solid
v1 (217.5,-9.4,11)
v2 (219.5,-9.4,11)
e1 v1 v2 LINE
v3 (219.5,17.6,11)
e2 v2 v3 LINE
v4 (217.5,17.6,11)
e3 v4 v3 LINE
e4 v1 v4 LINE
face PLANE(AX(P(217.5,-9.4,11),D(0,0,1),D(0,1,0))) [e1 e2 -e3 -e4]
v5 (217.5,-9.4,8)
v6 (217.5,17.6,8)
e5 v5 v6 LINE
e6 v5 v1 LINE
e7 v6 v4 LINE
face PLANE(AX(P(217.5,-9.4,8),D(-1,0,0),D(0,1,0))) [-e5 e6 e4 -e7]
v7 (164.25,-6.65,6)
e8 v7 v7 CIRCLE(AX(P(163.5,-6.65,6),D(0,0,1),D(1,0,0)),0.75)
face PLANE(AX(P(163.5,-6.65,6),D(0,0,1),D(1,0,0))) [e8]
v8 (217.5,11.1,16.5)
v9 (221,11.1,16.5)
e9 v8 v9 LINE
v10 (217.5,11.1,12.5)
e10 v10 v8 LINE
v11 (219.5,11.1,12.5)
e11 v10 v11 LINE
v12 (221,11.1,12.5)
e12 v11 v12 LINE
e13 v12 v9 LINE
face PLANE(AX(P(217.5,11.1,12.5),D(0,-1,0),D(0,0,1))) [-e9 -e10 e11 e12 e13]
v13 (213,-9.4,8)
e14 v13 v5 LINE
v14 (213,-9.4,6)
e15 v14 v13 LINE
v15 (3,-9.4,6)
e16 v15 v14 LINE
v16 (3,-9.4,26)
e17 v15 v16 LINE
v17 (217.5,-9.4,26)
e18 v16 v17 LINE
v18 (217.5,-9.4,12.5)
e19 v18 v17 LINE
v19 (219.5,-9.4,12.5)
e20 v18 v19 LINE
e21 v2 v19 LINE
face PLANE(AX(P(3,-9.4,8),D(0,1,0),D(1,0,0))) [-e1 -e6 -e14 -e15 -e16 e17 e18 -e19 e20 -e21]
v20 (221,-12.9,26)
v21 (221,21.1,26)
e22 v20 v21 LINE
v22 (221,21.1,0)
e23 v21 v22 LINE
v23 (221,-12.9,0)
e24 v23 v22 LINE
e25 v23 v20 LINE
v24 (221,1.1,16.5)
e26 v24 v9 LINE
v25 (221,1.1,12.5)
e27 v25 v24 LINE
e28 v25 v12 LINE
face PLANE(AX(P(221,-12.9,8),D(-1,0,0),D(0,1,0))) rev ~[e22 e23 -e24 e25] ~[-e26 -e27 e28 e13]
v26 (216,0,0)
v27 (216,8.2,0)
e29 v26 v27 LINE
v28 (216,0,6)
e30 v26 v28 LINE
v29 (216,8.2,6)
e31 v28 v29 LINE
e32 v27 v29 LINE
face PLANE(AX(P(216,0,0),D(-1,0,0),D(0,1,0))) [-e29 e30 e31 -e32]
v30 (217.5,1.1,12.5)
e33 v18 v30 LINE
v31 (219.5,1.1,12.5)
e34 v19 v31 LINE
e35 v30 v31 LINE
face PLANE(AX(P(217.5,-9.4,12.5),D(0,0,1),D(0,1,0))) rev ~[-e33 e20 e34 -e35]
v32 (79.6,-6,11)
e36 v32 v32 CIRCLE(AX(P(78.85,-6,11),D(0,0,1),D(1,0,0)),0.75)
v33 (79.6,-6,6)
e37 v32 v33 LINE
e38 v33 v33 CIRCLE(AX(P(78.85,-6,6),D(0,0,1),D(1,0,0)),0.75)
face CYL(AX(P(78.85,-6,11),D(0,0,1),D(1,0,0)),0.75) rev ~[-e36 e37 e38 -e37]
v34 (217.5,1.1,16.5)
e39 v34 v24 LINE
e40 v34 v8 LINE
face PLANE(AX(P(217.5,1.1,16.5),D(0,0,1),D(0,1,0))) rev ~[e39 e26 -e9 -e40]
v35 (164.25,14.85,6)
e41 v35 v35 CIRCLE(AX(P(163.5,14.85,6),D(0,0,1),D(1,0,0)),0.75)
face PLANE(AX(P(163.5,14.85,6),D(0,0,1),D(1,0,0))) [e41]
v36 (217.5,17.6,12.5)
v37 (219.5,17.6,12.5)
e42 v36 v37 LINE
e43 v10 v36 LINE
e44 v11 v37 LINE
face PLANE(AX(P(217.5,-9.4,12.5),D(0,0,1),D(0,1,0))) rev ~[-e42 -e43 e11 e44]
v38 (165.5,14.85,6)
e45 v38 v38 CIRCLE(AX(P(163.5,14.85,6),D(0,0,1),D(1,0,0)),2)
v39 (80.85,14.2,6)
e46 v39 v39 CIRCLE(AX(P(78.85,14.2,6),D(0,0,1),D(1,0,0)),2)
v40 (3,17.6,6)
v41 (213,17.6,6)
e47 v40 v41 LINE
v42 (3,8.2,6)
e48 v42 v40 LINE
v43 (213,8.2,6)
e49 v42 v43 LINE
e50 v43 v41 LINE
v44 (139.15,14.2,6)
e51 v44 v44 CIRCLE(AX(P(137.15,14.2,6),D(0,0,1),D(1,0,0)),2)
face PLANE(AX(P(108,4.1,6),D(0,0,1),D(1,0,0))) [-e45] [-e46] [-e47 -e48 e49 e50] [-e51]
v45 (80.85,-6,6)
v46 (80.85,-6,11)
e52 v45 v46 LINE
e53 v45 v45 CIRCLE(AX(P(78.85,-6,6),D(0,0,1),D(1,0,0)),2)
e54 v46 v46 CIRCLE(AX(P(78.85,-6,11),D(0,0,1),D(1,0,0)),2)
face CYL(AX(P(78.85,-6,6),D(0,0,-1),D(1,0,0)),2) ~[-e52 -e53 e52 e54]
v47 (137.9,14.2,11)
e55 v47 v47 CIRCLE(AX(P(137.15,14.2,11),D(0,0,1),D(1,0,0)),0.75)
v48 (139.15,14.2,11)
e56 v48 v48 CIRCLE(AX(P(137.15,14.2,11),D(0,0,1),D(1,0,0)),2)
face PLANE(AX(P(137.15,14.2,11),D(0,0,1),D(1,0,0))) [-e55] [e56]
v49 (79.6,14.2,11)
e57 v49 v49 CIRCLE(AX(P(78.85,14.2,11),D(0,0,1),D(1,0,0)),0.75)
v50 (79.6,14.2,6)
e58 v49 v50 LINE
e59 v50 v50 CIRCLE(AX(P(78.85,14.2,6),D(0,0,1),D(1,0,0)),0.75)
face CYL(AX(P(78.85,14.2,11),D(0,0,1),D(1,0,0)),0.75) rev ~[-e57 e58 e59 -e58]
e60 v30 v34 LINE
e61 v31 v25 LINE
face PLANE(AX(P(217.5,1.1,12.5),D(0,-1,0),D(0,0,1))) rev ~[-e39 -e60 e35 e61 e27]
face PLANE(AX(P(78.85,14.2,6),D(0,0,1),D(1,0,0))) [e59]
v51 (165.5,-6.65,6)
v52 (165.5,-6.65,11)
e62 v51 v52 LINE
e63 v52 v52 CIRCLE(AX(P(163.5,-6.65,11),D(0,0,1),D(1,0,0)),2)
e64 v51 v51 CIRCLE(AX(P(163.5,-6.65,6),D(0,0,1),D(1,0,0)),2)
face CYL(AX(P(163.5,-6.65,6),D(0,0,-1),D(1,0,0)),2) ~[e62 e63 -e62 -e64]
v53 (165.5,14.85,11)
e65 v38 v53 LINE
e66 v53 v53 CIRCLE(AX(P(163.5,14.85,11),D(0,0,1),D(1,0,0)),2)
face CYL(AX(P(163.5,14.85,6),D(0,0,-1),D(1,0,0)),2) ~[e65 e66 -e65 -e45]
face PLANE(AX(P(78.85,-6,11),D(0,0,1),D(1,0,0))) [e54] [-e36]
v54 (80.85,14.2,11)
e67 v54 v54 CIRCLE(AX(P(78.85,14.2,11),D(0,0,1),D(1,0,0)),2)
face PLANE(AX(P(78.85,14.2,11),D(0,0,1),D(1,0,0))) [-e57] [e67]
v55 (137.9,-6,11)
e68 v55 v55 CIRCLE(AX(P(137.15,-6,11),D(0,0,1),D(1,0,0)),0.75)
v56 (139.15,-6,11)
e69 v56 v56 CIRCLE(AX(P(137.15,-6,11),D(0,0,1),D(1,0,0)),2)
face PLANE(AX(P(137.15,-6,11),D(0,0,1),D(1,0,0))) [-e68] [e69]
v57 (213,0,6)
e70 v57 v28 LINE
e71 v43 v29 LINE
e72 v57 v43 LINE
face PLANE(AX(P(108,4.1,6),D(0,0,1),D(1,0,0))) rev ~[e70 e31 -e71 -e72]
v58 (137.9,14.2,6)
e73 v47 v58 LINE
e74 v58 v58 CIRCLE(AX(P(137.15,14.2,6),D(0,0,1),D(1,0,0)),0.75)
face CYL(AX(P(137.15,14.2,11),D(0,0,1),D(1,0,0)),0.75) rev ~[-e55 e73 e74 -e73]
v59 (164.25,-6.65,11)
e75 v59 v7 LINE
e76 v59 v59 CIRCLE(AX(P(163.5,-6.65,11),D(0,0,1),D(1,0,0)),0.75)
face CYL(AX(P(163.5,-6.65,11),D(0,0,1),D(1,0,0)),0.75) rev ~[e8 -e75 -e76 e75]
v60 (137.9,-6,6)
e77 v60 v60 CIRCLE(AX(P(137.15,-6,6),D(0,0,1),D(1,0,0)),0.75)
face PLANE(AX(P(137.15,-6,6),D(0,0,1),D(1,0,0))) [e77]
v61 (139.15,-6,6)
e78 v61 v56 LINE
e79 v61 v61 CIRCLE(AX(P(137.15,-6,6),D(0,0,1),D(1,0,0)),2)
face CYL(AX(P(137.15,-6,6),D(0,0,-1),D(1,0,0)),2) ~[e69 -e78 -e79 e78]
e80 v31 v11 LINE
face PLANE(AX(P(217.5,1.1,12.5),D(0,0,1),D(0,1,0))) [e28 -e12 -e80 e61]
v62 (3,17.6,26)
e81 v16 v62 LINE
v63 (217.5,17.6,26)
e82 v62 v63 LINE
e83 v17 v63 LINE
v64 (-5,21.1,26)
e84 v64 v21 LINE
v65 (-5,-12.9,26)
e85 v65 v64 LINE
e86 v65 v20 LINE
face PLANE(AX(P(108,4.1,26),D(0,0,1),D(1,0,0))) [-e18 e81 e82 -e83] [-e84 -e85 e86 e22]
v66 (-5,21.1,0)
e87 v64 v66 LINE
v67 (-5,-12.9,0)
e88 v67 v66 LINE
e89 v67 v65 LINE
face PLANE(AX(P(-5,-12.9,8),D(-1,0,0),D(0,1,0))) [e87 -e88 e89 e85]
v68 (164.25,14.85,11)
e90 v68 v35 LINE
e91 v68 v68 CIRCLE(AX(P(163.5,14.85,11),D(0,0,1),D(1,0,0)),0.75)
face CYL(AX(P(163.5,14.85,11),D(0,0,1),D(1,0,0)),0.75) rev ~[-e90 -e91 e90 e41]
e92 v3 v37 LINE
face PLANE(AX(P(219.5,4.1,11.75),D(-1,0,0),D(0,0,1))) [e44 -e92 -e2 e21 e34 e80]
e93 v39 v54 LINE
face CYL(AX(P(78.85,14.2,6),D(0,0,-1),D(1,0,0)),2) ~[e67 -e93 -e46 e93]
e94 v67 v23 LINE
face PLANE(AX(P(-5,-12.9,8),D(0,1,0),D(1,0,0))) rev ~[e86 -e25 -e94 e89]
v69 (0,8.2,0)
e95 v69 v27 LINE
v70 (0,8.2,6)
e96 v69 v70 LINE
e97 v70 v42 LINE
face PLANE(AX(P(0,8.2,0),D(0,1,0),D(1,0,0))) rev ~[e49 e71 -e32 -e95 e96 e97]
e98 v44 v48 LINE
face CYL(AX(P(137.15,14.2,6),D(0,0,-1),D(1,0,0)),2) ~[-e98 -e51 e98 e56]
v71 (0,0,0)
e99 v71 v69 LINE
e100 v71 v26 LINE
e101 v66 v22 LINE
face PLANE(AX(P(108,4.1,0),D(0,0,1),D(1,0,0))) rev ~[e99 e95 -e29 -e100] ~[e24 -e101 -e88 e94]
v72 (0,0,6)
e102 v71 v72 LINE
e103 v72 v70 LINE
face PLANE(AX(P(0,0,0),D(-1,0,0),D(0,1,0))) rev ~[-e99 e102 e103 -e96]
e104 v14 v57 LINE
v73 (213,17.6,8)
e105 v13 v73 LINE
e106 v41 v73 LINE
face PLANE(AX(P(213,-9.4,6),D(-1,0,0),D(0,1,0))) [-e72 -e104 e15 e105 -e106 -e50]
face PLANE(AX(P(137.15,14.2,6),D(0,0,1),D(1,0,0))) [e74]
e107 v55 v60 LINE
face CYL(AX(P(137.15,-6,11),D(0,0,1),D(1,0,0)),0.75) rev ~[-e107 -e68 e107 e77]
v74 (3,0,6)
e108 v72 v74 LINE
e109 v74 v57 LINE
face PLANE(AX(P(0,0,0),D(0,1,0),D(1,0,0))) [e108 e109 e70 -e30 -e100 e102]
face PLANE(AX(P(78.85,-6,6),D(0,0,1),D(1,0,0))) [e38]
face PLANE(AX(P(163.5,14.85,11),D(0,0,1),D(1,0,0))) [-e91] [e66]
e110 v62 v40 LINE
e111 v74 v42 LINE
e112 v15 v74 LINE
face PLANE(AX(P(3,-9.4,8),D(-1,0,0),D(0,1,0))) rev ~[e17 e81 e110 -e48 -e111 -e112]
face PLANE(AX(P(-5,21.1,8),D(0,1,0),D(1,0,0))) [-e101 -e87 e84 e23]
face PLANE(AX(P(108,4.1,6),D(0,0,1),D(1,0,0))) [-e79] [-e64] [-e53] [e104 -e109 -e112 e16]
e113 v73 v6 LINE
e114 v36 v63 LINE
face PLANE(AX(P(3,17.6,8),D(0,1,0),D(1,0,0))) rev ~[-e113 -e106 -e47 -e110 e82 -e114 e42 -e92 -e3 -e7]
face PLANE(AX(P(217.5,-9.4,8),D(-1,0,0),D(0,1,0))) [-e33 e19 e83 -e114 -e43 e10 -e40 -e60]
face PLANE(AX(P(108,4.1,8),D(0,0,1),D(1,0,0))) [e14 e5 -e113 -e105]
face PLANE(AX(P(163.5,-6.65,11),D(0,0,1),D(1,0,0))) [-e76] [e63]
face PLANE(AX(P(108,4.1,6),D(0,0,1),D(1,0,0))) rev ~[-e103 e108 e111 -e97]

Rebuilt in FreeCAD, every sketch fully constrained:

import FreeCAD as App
import Part
import Sketcher


def add_polygon(sketch, points):
    """Adds a closed chain of lines whose ends are joined by coincident constraints."""
    first, n = sketch.GeometryCount, len(points)
    for a, b in zip(points, points[1:] + points[:1]):
        sketch.addGeometry(Part.LineSegment(App.Vector(*a, 0), App.Vector(*b, 0)), False)
    for i in range(n):
        sketch.addConstraint(Sketcher.Constraint("Coincident", first + i, 2, first + (i + 1) % n, 1))

doc = App.newDocument("Part")
params = doc.addObject("Spreadsheet::Sheet", "Params")
for row, (alias, value) in enumerate([
    ("sketch1_width", "226 mm"),
    ("sketch1_width2", "216 mm"),
    ("sketch1_height", "34 mm"),
    ("sketch1_height2", "8.2 mm"),
    ("pad1_length", "6 mm"),
    ("sketch2_diameter", "4 mm"),
    ("pad2_length", "5 mm"),
    ("sketch3_diameter", "1.5 mm"),
    ("pocket1_length", "5 mm"),
    ("sketch4_width", "226 mm"),
    ("sketch4_width2", "210 mm"),
    ("sketch4_height", "34 mm"),
    ("sketch4_height2", "27 mm"),
    ("pad3_length", "2 mm"),
    ("sketch5_width", "226 mm"),
    ("sketch5_height", "34 mm"),
    ("sketch5_height2", "27 mm"),
    ("sketch5_width2", "214.5 mm"),
    ("pad4_length", "18 mm"),
    ("sketch6_width", "27 mm"),
    ("sketch6_height", "1.5 mm"),
    ("pocket2_length", "2 mm"),
    ("sketch7_diameter", "4 mm"),
    ("pad5_length", "5 mm"),
    ("sketch8_diameter", "1.5 mm"),
    ("pocket3_length", "5 mm"),
    ("sketch9_width", "10 mm"),
    ("sketch9_height", "4 mm"),
    ("pocket4_length", "5 mm"),
], start=1):
    params.set(f"A{row}", alias)
    params.set(f"B{row}", "=" + value)
    params.setAlias(f"B{row}", alias)

body = doc.addObject("PartDesign::Body", "Body")

# Sketch on XY plane
sketch1 = doc.addObject("Sketcher::SketchObject", "Sketch")
body.addObject(sketch1)
sketch1.AttachmentSupport = (doc.XY_Plane, [""])
sketch1.MapMode = "FlatFace"
add_polygon(sketch1, [(-5, 21.1), (-5, -12.9), (221, -12.9), (221, 21.1)])  # lines 0-3
add_polygon(sketch1, [(216, 0), (0, 0), (0, 8.2), (216, 8.2)])  # lines 4-7
sketch1.addConstraint([
    Sketcher.Constraint("Vertical", 0),
    Sketcher.Constraint("Horizontal", 1),
    Sketcher.Constraint("Vertical", 2),
    Sketcher.Constraint("Horizontal", 3),
    Sketcher.Constraint("Horizontal", 4),
    Sketcher.Constraint("Vertical", 5),
    Sketcher.Constraint("Horizontal", 6),
    Sketcher.Constraint("Vertical", 7),
    Sketcher.Constraint("Coincident", 4, 2, -1, 1),
    Sketcher.Constraint("DistanceX", 1, 1, 1, 2, 226.0),
    Sketcher.Constraint("DistanceX", 4, 2, 4, 1, 216.0),
    Sketcher.Constraint("DistanceY", 0, 2, 0, 1, 34.0),
    Sketcher.Constraint("DistanceY", 5, 1, 5, 2, 8.2),
    Sketcher.Constraint("DistanceX", 0, 2, -1, 1, 5.0),
    Sketcher.Constraint("DistanceY", 0, 2, -1, 1, 12.9),
])
sketch1.setExpression("Constraints[17]", "Params.sketch1_width")
sketch1.setExpression("Constraints[18]", "Params.sketch1_width2")
sketch1.setExpression("Constraints[19]", "Params.sketch1_height")
sketch1.setExpression("Constraints[20]", "Params.sketch1_height2")
pad1 = doc.addObject("PartDesign::Pad", "Pad")
body.addObject(pad1)
pad1.Profile = sketch1
pad1.setExpression("Length", "Params.pad1_length")

# Sketch on XY plane
sketch2 = doc.addObject("Sketcher::SketchObject", "Sketch001")
body.addObject(sketch2)
sketch2.AttachmentSupport = (doc.XY_Plane, [""])
sketch2.MapMode = "FlatFace"
sketch2.AttachmentOffset = App.Placement(App.Vector(0, 0, 6), App.Rotation())
sketch2.addGeometry([
    Part.Circle(App.Vector(78.85, 14.2, 0), App.Vector(0, 0, 1), 2),
    Part.Circle(App.Vector(78.85, -6, 0), App.Vector(0, 0, 1), 2),
    Part.Circle(App.Vector(137.15, 14.2, 0), App.Vector(0, 0, 1), 2),
    Part.Circle(App.Vector(137.15, -6, 0), App.Vector(0, 0, 1), 2),
], False)
sketch2.addConstraint([
    Sketcher.Constraint("Equal", 0, 1),
    Sketcher.Constraint("Equal", 1, 2),
    Sketcher.Constraint("Equal", 2, 3),
    Sketcher.Constraint("Horizontal", 0, 3, 2, 3),
    Sketcher.Constraint("Horizontal", 1, 3, 3, 3),
    Sketcher.Constraint("Vertical", 0, 3, 1, 3),
    Sketcher.Constraint("Vertical", 2, 3, 3, 3),
    Sketcher.Constraint("Diameter", 0, 4.0),
    Sketcher.Constraint("DistanceY", 1, 3, -1, 1, 6.0),
    Sketcher.Constraint("DistanceY", -1, 1, 0, 3, 14.2),
    Sketcher.Constraint("DistanceX", 0, 3, 2, 3, 58.3),
    Sketcher.Constraint("DistanceX", -1, 1, 0, 3, 78.85),
])
sketch2.setExpression("Constraints[7]", "Params.sketch2_diameter")
pad2 = doc.addObject("PartDesign::Pad", "Pad001")
body.addObject(pad2)
pad2.Profile = sketch2
pad2.setExpression("Length", "Params.pad2_length")

# Sketch on XY plane
sketch3 = doc.addObject("Sketcher::SketchObject", "Sketch002")
body.addObject(sketch3)
sketch3.AttachmentSupport = (doc.XY_Plane, [""])
sketch3.MapMode = "FlatFace"
sketch3.AttachmentOffset = App.Placement(App.Vector(0, 0, 11), App.Rotation())
sketch3.addGeometry([
    Part.Circle(App.Vector(78.85, 14.2, 0), App.Vector(0, 0, 1), 0.75),
    Part.Circle(App.Vector(78.85, -6, 0), App.Vector(0, 0, 1), 0.75),
    Part.Circle(App.Vector(137.15, 14.2, 0), App.Vector(0, 0, 1), 0.75),
    Part.Circle(App.Vector(137.15, -6, 0), App.Vector(0, 0, 1), 0.75),
], False)
sketch3.addConstraint([
    Sketcher.Constraint("Equal", 0, 1),
    Sketcher.Constraint("Equal", 1, 2),
    Sketcher.Constraint("Equal", 2, 3),
    Sketcher.Constraint("Horizontal", 0, 3, 2, 3),
    Sketcher.Constraint("Horizontal", 1, 3, 3, 3),
    Sketcher.Constraint("Vertical", 0, 3, 1, 3),
    Sketcher.Constraint("Vertical", 2, 3, 3, 3),
    Sketcher.Constraint("Diameter", 0, 1.5),
    Sketcher.Constraint("DistanceY", 1, 3, -1, 1, 6.0),
    Sketcher.Constraint("DistanceY", -1, 1, 0, 3, 14.2),
    Sketcher.Constraint("DistanceX", 0, 3, 2, 3, 58.3),
    Sketcher.Constraint("DistanceX", -1, 1, 0, 3, 78.85),
])
sketch3.setExpression("Constraints[7]", "Params.sketch3_diameter")
pocket1 = doc.addObject("PartDesign::Pocket", "Pocket")
body.addObject(pocket1)
pocket1.Profile = sketch3
pocket1.setExpression("Length", "Params.pocket1_length")

# Sketch on XY plane
sketch4 = doc.addObject("Sketcher::SketchObject", "Sketch003")
body.addObject(sketch4)
sketch4.AttachmentSupport = (doc.XY_Plane, [""])
sketch4.MapMode = "FlatFace"
sketch4.AttachmentOffset = App.Placement(App.Vector(0, 0, 6), App.Rotation())
add_polygon(sketch4, [(-5, 21.1), (-5, -12.9), (221, -12.9), (221, 21.1)])  # lines 0-3
add_polygon(sketch4, [(213, -9.4), (3, -9.4), (3, 17.6), (213, 17.6)])  # lines 4-7
sketch4.addConstraint([
    Sketcher.Constraint("Vertical", 0),
    Sketcher.Constraint("Horizontal", 1),
    Sketcher.Constraint("Vertical", 2),
    Sketcher.Constraint("Horizontal", 3),
    Sketcher.Constraint("Horizontal", 4),
    Sketcher.Constraint("Vertical", 5),
    Sketcher.Constraint("Horizontal", 6),
    Sketcher.Constraint("Vertical", 7),
    Sketcher.Constraint("DistanceX", 1, 1, 1, 2, 226.0),
    Sketcher.Constraint("DistanceX", 4, 2, 4, 1, 210.0),
    Sketcher.Constraint("DistanceY", 0, 2, 0, 1, 34.0),
    Sketcher.Constraint("DistanceY", 5, 1, 5, 2, 27.0),
    Sketcher.Constraint("DistanceX", 0, 2, -1, 1, 5.0),
    Sketcher.Constraint("DistanceX", -1, 1, 4, 2, 3.0),
    Sketcher.Constraint("DistanceY", 0, 2, -1, 1, 12.9),
    Sketcher.Constraint("DistanceY", 4, 2, -1, 1, 9.4),
])
sketch4.setExpression("Constraints[16]", "Params.sketch4_width")
sketch4.setExpression("Constraints[17]", "Params.sketch4_width2")
sketch4.setExpression("Constraints[18]", "Params.sketch4_height")
sketch4.setExpression("Constraints[19]", "Params.sketch4_height2")
pad3 = doc.addObject("PartDesign::Pad", "Pad002")
body.addObject(pad3)
pad3.Profile = sketch4
pad3.setExpression("Length", "Params.pad3_length")

# Sketch on XY plane
sketch5 = doc.addObject("Sketcher::SketchObject", "Sketch004")
body.addObject(sketch5)
sketch5.AttachmentSupport = (doc.XY_Plane, [""])
sketch5.MapMode = "FlatFace"
sketch5.AttachmentOffset = App.Placement(App.Vector(0, 0, 8), App.Rotation())
add_polygon(sketch5, [(-5, 21.1), (-5, -12.9), (221, -12.9), (221, 21.1)])  # lines 0-3
add_polygon(sketch5, [(217.5, -9.4), (3, -9.4), (3, 17.6), (217.5, 17.6)])  # lines 4-7
sketch5.addConstraint([
    Sketcher.Constraint("Vertical", 0),
    Sketcher.Constraint("Horizontal", 1),
    Sketcher.Constraint("Vertical", 2),
    Sketcher.Constraint("Horizontal", 3),
    Sketcher.Constraint("Horizontal", 4),
    Sketcher.Constraint("Vertical", 5),
    Sketcher.Constraint("Horizontal", 6),
    Sketcher.Constraint("Vertical", 7),
    Sketcher.Constraint("DistanceX", 1, 1, 1, 2, 226.0),
    Sketcher.Constraint("DistanceY", 0, 2, 0, 1, 34.0),
    Sketcher.Constraint("DistanceY", 5, 1, 5, 2, 27.0),
    Sketcher.Constraint("DistanceX", 4, 2, 4, 1, 214.5),
    Sketcher.Constraint("DistanceX", 0, 2, -1, 1, 5.0),
    Sketcher.Constraint("DistanceX", -1, 1, 4, 2, 3.0),
    Sketcher.Constraint("DistanceY", 0, 2, -1, 1, 12.9),
    Sketcher.Constraint("DistanceY", 4, 2, -1, 1, 9.4),
])
sketch5.setExpression("Constraints[16]", "Params.sketch5_width")
sketch5.setExpression("Constraints[17]", "Params.sketch5_height")
sketch5.setExpression("Constraints[18]", "Params.sketch5_height2")
sketch5.setExpression("Constraints[19]", "Params.sketch5_width2")
pad4 = doc.addObject("PartDesign::Pad", "Pad003")
body.addObject(pad4)
pad4.Profile = sketch5
pad4.setExpression("Length", "Params.pad4_length")

# Sketch on YZ plane
sketch6 = doc.addObject("Sketcher::SketchObject", "Sketch005")
body.addObject(sketch6)
sketch6.AttachmentSupport = (doc.YZ_Plane, [""])
sketch6.MapMode = "FlatFace"
sketch6.AttachmentOffset = App.Placement(App.Vector(0, 0, 217.5), App.Rotation())
add_polygon(sketch6, [(17.6, 11), (-9.4, 11), (-9.4, 12.5), (17.6, 12.5)])  # lines 0-3
sketch6.addConstraint([
    Sketcher.Constraint("Horizontal", 0),
    Sketcher.Constraint("Vertical", 1),
    Sketcher.Constraint("Horizontal", 2),
    Sketcher.Constraint("Vertical", 3),
    Sketcher.Constraint("DistanceX", 0, 2, 0, 1, 27.0),
    Sketcher.Constraint("DistanceY", 1, 1, 1, 2, 1.5),
    Sketcher.Constraint("DistanceY", -1, 1, 0, 2, 11.0),
    Sketcher.Constraint("DistanceX", 0, 2, -1, 1, 9.4),
])
sketch6.setExpression("Constraints[8]", "Params.sketch6_width")
sketch6.setExpression("Constraints[9]", "Params.sketch6_height")
pocket2 = doc.addObject("PartDesign::Pocket", "Pocket001")
body.addObject(pocket2)
pocket2.Profile = sketch6
pocket2.setExpression("Length", "Params.pocket2_length")
pocket2.Reversed = True

# Sketch on XY plane
sketch7 = doc.addObject("Sketcher::SketchObject", "Sketch006")
body.addObject(sketch7)
sketch7.AttachmentSupport = (doc.XY_Plane, [""])
sketch7.MapMode = "FlatFace"
sketch7.AttachmentOffset = App.Placement(App.Vector(0, 0, 6), App.Rotation())
sketch7.addGeometry([
    Part.Circle(App.Vector(163.5, 14.85, 0), App.Vector(0, 0, 1), 2),
    Part.Circle(App.Vector(163.5, -6.65, 0), App.Vector(0, 0, 1), 2),
], False)
sketch7.addConstraint([
    Sketcher.Constraint("Equal", 0, 1),
    Sketcher.Constraint("Vertical", 0, 3, 1, 3),
    Sketcher.Constraint("Diameter", 0, 4.0),
    Sketcher.Constraint("DistanceX", -1, 1, 0, 3, 163.5),
    Sketcher.Constraint("DistanceY", 1, 3, 0, 3, 21.5),
    Sketcher.Constraint("DistanceY", -1, 1, 0, 3, 14.85),
])
sketch7.setExpression("Constraints[2]", "Params.sketch7_diameter")
pad5 = doc.addObject("PartDesign::Pad", "Pad004")
body.addObject(pad5)
pad5.Profile = sketch7
pad5.setExpression("Length", "Params.pad5_length")

# Sketch on XY plane
sketch8 = doc.addObject("Sketcher::SketchObject", "Sketch007")
body.addObject(sketch8)
sketch8.AttachmentSupport = (doc.XY_Plane, [""])
sketch8.MapMode = "FlatFace"
sketch8.AttachmentOffset = App.Placement(App.Vector(0, 0, 11), App.Rotation())
sketch8.addGeometry([
    Part.Circle(App.Vector(163.5, 14.85, 0), App.Vector(0, 0, 1), 0.75),
    Part.Circle(App.Vector(163.5, -6.65, 0), App.Vector(0, 0, 1), 0.75),
], False)
sketch8.addConstraint([
    Sketcher.Constraint("Equal", 0, 1),
    Sketcher.Constraint("Vertical", 0, 3, 1, 3),
    Sketcher.Constraint("Diameter", 0, 1.5),
    Sketcher.Constraint("DistanceX", -1, 1, 0, 3, 163.5),
    Sketcher.Constraint("DistanceY", 1, 3, 0, 3, 21.5),
    Sketcher.Constraint("DistanceY", -1, 1, 0, 3, 14.85),
])
sketch8.setExpression("Constraints[2]", "Params.sketch8_diameter")
pocket3 = doc.addObject("PartDesign::Pocket", "Pocket002")
body.addObject(pocket3)
pocket3.Profile = sketch8
pocket3.setExpression("Length", "Params.pocket3_length")

# Sketch on YZ plane
sketch9 = doc.addObject("Sketcher::SketchObject", "Sketch008")
body.addObject(sketch9)
sketch9.AttachmentSupport = (doc.YZ_Plane, [""])
sketch9.MapMode = "FlatFace"
sketch9.AttachmentOffset = App.Placement(App.Vector(0, 0, 217.5), App.Rotation())
add_polygon(sketch9, [(11.1, 12.5), (1.1, 12.5), (1.1, 16.5), (11.1, 16.5)])  # lines 0-3
sketch9.addConstraint([
    Sketcher.Constraint("Horizontal", 0),
    Sketcher.Constraint("Vertical", 1),
    Sketcher.Constraint("Horizontal", 2),
    Sketcher.Constraint("Vertical", 3),
    Sketcher.Constraint("DistanceX", 0, 2, 0, 1, 10.0),
    Sketcher.Constraint("DistanceY", 1, 1, 1, 2, 4.0),
    Sketcher.Constraint("DistanceX", -1, 1, 0, 2, 1.1),
    Sketcher.Constraint("DistanceY", -1, 1, 0, 2, 12.5),
])
sketch9.setExpression("Constraints[8]", "Params.sketch9_width")
sketch9.setExpression("Constraints[9]", "Params.sketch9_height")
pocket4 = doc.addObject("PartDesign::Pocket", "Pocket003")
body.addObject(pocket4)
pocket4.Profile = sketch9
pocket4.setExpression("Length", "Params.pocket4_length")
pocket4.Reversed = True

doc.recompute()
